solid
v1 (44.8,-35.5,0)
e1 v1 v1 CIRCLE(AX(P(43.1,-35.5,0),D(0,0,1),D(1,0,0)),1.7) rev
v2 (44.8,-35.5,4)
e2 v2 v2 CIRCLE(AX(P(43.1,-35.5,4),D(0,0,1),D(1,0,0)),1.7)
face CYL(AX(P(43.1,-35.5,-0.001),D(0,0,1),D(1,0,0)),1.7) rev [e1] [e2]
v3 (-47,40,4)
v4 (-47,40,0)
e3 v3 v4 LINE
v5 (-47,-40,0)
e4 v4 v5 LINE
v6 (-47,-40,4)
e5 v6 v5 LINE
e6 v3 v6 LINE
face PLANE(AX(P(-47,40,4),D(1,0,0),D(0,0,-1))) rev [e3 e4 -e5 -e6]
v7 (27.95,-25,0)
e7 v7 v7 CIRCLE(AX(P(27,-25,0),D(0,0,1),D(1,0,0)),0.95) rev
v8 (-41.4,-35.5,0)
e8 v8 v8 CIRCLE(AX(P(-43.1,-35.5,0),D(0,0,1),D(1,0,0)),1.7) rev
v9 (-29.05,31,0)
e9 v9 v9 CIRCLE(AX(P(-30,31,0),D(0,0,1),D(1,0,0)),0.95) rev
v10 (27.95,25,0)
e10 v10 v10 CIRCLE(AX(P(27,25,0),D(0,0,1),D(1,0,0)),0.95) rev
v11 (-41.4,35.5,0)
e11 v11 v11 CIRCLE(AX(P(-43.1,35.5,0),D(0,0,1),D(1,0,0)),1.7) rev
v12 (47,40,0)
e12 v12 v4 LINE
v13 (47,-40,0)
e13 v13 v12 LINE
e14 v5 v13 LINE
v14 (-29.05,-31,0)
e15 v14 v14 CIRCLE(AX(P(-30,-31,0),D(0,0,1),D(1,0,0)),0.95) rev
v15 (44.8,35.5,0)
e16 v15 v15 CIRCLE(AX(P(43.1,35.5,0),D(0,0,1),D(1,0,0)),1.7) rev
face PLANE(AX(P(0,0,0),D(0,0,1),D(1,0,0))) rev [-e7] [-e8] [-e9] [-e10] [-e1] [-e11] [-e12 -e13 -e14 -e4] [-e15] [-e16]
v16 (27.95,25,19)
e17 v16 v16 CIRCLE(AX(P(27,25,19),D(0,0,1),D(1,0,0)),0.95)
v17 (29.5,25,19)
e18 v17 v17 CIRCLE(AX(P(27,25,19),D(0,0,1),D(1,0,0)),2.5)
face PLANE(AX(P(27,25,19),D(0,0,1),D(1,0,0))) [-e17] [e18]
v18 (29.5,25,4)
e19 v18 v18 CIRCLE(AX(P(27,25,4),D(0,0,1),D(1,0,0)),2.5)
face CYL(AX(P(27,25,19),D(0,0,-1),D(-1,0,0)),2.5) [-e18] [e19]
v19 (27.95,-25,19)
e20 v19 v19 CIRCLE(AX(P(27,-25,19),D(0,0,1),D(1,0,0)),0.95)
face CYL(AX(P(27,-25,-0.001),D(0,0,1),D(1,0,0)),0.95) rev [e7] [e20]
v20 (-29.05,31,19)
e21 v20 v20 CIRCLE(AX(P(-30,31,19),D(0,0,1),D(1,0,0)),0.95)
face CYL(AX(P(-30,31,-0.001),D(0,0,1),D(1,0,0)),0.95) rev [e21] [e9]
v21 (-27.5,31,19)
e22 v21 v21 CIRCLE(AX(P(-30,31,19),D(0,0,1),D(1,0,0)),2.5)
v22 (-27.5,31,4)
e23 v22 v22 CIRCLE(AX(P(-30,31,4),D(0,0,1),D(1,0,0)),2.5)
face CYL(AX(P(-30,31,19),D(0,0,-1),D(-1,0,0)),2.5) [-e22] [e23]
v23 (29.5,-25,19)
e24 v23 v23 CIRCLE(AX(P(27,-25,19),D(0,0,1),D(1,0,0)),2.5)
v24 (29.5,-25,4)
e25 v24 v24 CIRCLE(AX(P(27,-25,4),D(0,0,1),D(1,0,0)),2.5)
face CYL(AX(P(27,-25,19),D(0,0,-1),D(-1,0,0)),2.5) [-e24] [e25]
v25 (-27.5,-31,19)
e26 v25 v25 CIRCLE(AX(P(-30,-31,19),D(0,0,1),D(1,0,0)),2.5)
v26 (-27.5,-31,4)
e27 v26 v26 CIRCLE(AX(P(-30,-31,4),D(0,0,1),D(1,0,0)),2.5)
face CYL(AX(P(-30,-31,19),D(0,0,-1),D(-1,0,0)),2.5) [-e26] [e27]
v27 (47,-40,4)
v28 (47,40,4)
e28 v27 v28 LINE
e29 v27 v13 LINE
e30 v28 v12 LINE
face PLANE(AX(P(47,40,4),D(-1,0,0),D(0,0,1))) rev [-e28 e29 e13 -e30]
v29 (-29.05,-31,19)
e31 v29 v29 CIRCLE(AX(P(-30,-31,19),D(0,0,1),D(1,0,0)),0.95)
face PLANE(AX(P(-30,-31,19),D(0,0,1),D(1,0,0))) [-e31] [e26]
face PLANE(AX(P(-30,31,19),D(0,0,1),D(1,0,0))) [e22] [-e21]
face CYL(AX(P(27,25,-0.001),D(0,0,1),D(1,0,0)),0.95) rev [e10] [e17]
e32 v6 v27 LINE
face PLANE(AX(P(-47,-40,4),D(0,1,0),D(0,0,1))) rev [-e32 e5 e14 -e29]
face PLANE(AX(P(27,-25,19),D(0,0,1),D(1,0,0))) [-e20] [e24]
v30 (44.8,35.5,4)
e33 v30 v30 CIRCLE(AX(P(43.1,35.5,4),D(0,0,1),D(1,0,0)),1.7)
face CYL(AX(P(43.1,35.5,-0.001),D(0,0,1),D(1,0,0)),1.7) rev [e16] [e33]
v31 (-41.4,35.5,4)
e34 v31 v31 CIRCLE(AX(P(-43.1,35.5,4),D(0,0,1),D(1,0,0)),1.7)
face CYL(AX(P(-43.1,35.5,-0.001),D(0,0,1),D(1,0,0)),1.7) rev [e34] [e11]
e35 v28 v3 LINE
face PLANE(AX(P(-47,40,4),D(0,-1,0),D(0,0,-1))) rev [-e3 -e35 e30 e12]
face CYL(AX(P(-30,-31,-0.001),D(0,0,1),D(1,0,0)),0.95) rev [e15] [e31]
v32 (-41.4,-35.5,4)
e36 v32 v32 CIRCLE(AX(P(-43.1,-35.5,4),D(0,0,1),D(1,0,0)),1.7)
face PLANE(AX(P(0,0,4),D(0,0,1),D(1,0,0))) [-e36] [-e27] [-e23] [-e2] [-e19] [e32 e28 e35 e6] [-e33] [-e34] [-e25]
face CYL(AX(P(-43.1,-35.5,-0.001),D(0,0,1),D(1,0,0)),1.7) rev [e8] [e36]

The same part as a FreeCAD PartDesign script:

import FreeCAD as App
import Part
import Sketcher

V = App.Vector


def add_polygon(sketch, points):
    """Adds a closed chain of lines whose ends are joined by coincident constraints."""
    first, n = sketch.GeometryCount, len(points)
    for a, b in zip(points, points[1:] + points[:1]):
        sketch.addGeometry(Part.LineSegment(App.Vector(*a, 0), App.Vector(*b, 0)), False)
    for i in range(n):
        sketch.addConstraint(Sketcher.Constraint("Coincident", first + i, 2, first + (i + 1) % n, 1))

doc = App.newDocument("Part")
body = doc.addObject("PartDesign::Body", "Body")

# Sketch on XY plane
sketch1 = body.newObject("Sketcher::SketchObject", "Sketch")
sketch1.AttachmentSupport = (doc.getObject("XY_Plane"), [""])
sketch1.MapMode = "FlatFace"
add_polygon(sketch1, [(-47, 40), (-47, -40), (47, -40), (47, 40)])  # lines 0-3
sketch1.addConstraint([
    Sketcher.Constraint("Vertical", 0),
    Sketcher.Constraint("Horizontal", 1),
    Sketcher.Constraint("Vertical", 2),
    Sketcher.Constraint("Horizontal", 3),
    Sketcher.Constraint("Symmetric", 0, 2, 2, 2, -1, 1),
    Sketcher.Constraint("DistanceX", 1, 1, 1, 2, 94.0),
    Sketcher.Constraint("DistanceY", 0, 2, 0, 1, 80.0),
])
pad1 = body.newObject("PartDesign::Pad", "Pad")
pad1.Profile = sketch1
pad1.Length = 4

# Sketch on XY plane
sketch2 = body.newObject("Sketcher::SketchObject", "Sketch001")
sketch2.AttachmentSupport = (doc.getObject("XY_Plane"), [""])
sketch2.MapMode = "FlatFace"
sketch2.AttachmentOffset = App.Placement(V(0, 0, 4), App.Rotation())
sketch2.addGeometry(Part.Circle(V(-43.1, -35.5, 0), V(0, 0, 1), 1.7), False)
sketch2.addConstraint([
    Sketcher.Constraint("Diameter", 0, 3.4),
    Sketcher.Constraint("DistanceX", 0, 3, -1, 1, 43.1),
    Sketcher.Constraint("DistanceY", 0, 3, -1, 1, 35.5),
])
pocket1 = body.newObject("PartDesign::Pocket", "Pocket")
pocket1.Profile = sketch2
pocket1.Type = "UpToFirst"

# Sketch on XY plane
sketch3 = body.newObject("Sketcher::SketchObject", "Sketch002")
sketch3.AttachmentSupport = (doc.getObject("XY_Plane"), [""])
sketch3.MapMode = "FlatFace"
sketch3.AttachmentOffset = App.Placement(V(0, 0, 4), App.Rotation())
sketch3.addGeometry(Part.Circle(V(43.1, -35.5, 0), V(0, 0, 1), 1.7), False)
sketch3.addConstraint([
    Sketcher.Constraint("Diameter", 0, 3.4),
    Sketcher.Constraint("DistanceX", -1, 1, 0, 3, 43.1),
    Sketcher.Constraint("DistanceY", 0, 3, -1, 1, 35.5),
])
pocket2 = body.newObject("PartDesign::Pocket", "Pocket001")
pocket2.Profile = sketch3
pocket2.Type = "UpToFirst"

# Sketch on XY plane
sketch4 = body.newObject("Sketcher::SketchObject", "Sketch003")
sketch4.AttachmentSupport = (doc.getObject("XY_Plane"), [""])
sketch4.MapMode = "FlatFace"
sketch4.AttachmentOffset = App.Placement(V(0, 0, 4), App.Rotation())
sketch4.addGeometry(Part.Circle(V(43.1, 35.5, 0), V(0, 0, 1), 1.7), False)
sketch4.addConstraint([
    Sketcher.Constraint("Diameter", 0, 3.4),
    Sketcher.Constraint("DistanceX", -1, 1, 0, 3, 43.1),
    Sketcher.Constraint("DistanceY", -1, 1, 0, 3, 35.5),
])
pocket3 = body.newObject("PartDesign::Pocket", "Pocket002")
pocket3.Profile = sketch4
pocket3.Type = "UpToFirst"

# Sketch on XY plane
sketch5 = body.newObject("Sketcher::SketchObject", "Sketch004")
sketch5.AttachmentSupport = (doc.getObject("XY_Plane"), [""])
sketch5.MapMode = "FlatFace"
sketch5.AttachmentOffset = App.Placement(V(0, 0, 4), App.Rotation())
sketch5.addGeometry(Part.Circle(V(-43.1, 35.5, 0), V(0, 0, 1), 1.7), False)
sketch5.addConstraint([
    Sketcher.Constraint("Diameter", 0, 3.4),
    Sketcher.Constraint("DistanceX", 0, 3, -1, 1, 43.1),
    Sketcher.Constraint("DistanceY", -1, 1, 0, 3, 35.5),
])
pocket4 = body.newObject("PartDesign::Pocket", "Pocket003")
pocket4.Profile = sketch5
pocket4.Type = "UpToFirst"

# Sketch on XY plane
sketch6 = body.newObject("Sketcher::SketchObject", "Sketch005")
sketch6.AttachmentSupport = (doc.getObject("XY_Plane"), [""])
sketch6.MapMode = "FlatFace"
sketch6.AttachmentOffset = App.Placement(V(0, 0, 4), App.Rotation())
sketch6.addGeometry([
    Part.Circle(V(-30, 31, 0), V(0, 0, 1), 2.5),
    Part.Circle(V(-30, -31, 0), V(0, 0, 1), 2.5),
    Part.Circle(V(27, 25, 0), V(0, 0, 1), 2.5),
    Part.Circle(V(27, -25, 0), V(0, 0, 1), 2.5),
], False)
sketch6.addConstraint([
    Sketcher.Constraint("Equal", 0, 1),
    Sketcher.Constraint("Equal", 1, 2),
    Sketcher.Constraint("Equal", 2, 3),
    Sketcher.Constraint("Symmetric", 0, 3, 1, 3, -1),
    Sketcher.Constraint("Symmetric", 2, 3, 3, 3, -1),
    Sketcher.Constraint("Diameter", 0, 5.0),
    Sketcher.Constraint("DistanceX", 0, 3, -1, 1, 30.0),
    Sketcher.Constraint("DistanceY", -1, 1, 0, 3, 31.0),
    Sketcher.Constraint("DistanceX", -1, 1, 2, 3, 27.0),
    Sketcher.Constraint("DistanceY", -1, 1, 2, 3, 25.0),
])
pad2 = body.newObject("PartDesign::Pad", "Pad001")
pad2.Profile = sketch6
pad2.Length = 15

# Sketch on XY plane
sketch7 = body.newObject("Sketcher::SketchObject", "Sketch006")
sketch7.AttachmentSupport = (doc.getObject("XY_Plane"), [""])
sketch7.MapMode = "FlatFace"
sketch7.AttachmentOffset = App.Placement(V(0, 0, 19), App.Rotation())
sketch7.addGeometry(Part.Circle(V(-30, 31, 0), V(0, 0, 1), 0.9), False)
sketch7.addConstraint([
    Sketcher.Constraint("Diameter", 0, 1.9),
    Sketcher.Constraint("DistanceX", 0, 3, -1, 1, 30.0),
    Sketcher.Constraint("DistanceY", -1, 1, 0, 3, 31.0),
])
pocket5 = body.newObject("PartDesign::Pocket", "Pocket004")
pocket5.Profile = sketch7
pocket5.Type = "UpToFirst"

# Sketch on XY plane
sketch8 = body.newObject("Sketcher::SketchObject", "Sketch007")
sketch8.AttachmentSupport = (doc.getObject("XY_Plane"), [""])
sketch8.MapMode = "FlatFace"
sketch8.AttachmentOffset = App.Placement(V(0, 0, 19), App.Rotation())
sketch8.addGeometry(Part.Circle(V(27, 25, 0), V(0, 0, 1), 0.9), False)
sketch8.addConstraint([
    Sketcher.Constraint("Diameter", 0, 1.9),
    Sketcher.Constraint("DistanceX", -1, 1, 0, 3, 27.0),
    Sketcher.Constraint("DistanceY", -1, 1, 0, 3, 25.0),
])
pocket6 = body.newObject("PartDesign::Pocket", "Pocket005")
pocket6.Profile = sketch8
pocket6.Type = "UpToFirst"

# Sketch on XY plane
sketch9 = body.newObject("Sketcher::SketchObject", "Sketch008")
sketch9.AttachmentSupport = (doc.getObject("XY_Plane"), [""])
sketch9.MapMode = "FlatFace"
sketch9.AttachmentOffset = App.Placement(V(0, 0, 19), App.Rotation())
sketch9.addGeometry(Part.Circle(V(-30, -31, 0), V(0, 0, 1), 0.9), False)
sketch9.addConstraint([
    Sketcher.Constraint("Diameter", 0, 1.9),
    Sketcher.Constraint("DistanceX", 0, 3, -1, 1, 30.0),
    Sketcher.Constraint("DistanceY", 0, 3, -1, 1, 31.0),
])
pocket7 = body.newObject("PartDesign::Pocket", "Pocket006")
pocket7.Profile = sketch9
pocket7.Type = "UpToFirst"

# Sketch on XY plane
sketch10 = body.newObject("Sketcher::SketchObject", "Sketch009")
sketch10.AttachmentSupport = (doc.getObject("XY_Plane"), [""])
sketch10.MapMode = "FlatFace"
sketch10.AttachmentOffset = App.Placement(V(0, 0, 19), App.Rotation())
sketch10.addGeometry(Part.Circle(V(27, -25, 0), V(0, 0, 1), 0.9), False)
sketch10.addConstraint([
    Sketcher.Constraint("Diameter", 0, 1.9),
    Sketcher.Constraint("DistanceX", -1, 1, 0, 3, 27.0),
    Sketcher.Constraint("DistanceY", 0, 3, -1, 1, 25.0),
])
pocket8 = body.newObject("PartDesign::Pocket", "Pocket007")
pocket8.Profile = sketch10
pocket8.Type = "UpToFirst"

doc.recompute()
